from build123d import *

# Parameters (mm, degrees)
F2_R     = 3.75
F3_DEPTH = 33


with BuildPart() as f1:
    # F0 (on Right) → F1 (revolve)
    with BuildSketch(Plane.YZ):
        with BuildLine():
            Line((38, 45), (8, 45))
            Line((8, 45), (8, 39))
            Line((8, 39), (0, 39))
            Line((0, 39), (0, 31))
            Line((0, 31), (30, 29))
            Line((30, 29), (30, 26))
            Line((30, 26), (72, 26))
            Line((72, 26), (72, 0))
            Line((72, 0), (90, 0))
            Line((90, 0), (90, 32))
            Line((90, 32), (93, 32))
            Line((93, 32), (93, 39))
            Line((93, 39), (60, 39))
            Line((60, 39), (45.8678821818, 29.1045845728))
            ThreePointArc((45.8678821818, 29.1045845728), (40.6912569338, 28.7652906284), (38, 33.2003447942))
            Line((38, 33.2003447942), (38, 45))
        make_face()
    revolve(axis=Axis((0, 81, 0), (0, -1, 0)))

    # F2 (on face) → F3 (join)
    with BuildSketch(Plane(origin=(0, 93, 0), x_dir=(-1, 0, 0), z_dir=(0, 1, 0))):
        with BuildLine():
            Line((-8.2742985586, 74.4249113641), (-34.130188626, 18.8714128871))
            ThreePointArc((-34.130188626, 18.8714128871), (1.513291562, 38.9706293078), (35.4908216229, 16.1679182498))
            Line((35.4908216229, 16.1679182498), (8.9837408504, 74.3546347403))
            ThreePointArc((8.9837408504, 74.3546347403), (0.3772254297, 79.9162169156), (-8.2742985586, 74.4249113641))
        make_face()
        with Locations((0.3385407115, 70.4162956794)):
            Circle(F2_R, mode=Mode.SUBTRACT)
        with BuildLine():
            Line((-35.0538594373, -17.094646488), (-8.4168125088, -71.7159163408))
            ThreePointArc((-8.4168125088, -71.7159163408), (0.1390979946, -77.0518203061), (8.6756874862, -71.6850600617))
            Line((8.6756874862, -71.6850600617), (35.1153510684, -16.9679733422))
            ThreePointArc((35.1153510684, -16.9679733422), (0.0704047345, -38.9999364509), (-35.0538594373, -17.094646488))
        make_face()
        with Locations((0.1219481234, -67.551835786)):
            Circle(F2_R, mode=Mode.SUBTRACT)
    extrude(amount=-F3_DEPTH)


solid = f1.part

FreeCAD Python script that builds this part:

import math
import FreeCAD as App
import Part
import Sketcher

V = App.Vector
Q = App.Units.Quantity

doc = App.newDocument("Part")
body = doc.addObject("PartDesign::Body", "Body")

# Sketch on YZ plane
sketch1 = body.newObject("Sketcher::SketchObject", "Sketch")
sketch1.AttachmentSupport = (doc.getObject("YZ_Plane"), [""])
sketch1.MapMode = "FlatFace"
sketch1.addGeometry([
    Part.LineSegment(V(38, 45, 0), V(8, 45, 0)),  # 0
    Part.LineSegment(V(8, 45, 0), V(8, 39, 0)),  # 1
    Part.LineSegment(V(8, 39, 0), V(0, 39, 0)),  # 2
    Part.LineSegment(V(0, 39, 0), V(0, 31, 0)),  # 3
    Part.LineSegment(V(0, 31, 0), V(30, 29, 0)),  # 4
    Part.LineSegment(V(30, 29, 0), V(30, 26, 0)),  # 5
    Part.LineSegment(V(30, 26, 0), V(72, 26, 0)),  # 6
    Part.LineSegment(V(72, 26, 0), V(72, 0, 0)),  # 7
    Part.LineSegment(V(72, 0, 0), V(90, 0, 0)),  # 8
    Part.LineSegment(V(90, 0, 0), V(90, 32, 0)),  # 9
    Part.LineSegment(V(90, 32, 0), V(93, 32, 0)),  # 10
    Part.LineSegment(V(93, 32, 0), V(93, 39, 0)),  # 11
    Part.LineSegment(V(93, 39, 0), V(60, 39, 0)),  # 12
    Part.LineSegment(V(60, 39, 0), V(45.867882, 29.104585, 0)),  # 13
    Part.ArcOfCircle(Part.Circle(V(43, 33.200345, 0), V(0, 0, 1), 5), math.radians(180), math.radians(305)),  # 14
    Part.LineSegment(V(38, 33.200345, 0), V(38, 45, 0)),  # 15
], False)
sketch1.addConstraint([
    Sketcher.Constraint("Coincident", 0, 2, 1, 1),
    Sketcher.Constraint("Coincident", 1, 2, 2, 1),
    Sketcher.Constraint("Coincident", 2, 2, 3, 1),
    Sketcher.Constraint("Coincident", 3, 2, 4, 1),
    Sketcher.Constraint("Coincident", 4, 2, 5, 1),
    Sketcher.Constraint("Coincident", 5, 2, 6, 1),
    Sketcher.Constraint("Coincident", 6, 2, 7, 1),
    Sketcher.Constraint("Coincident", 7, 2, 8, 1),
    Sketcher.Constraint("Coincident", 8, 2, 9, 1),
    Sketcher.Constraint("Coincident", 9, 2, 10, 1),
    Sketcher.Constraint("Coincident", 10, 2, 11, 1),
    Sketcher.Constraint("Coincident", 11, 2, 12, 1),
    Sketcher.Constraint("Coincident", 12, 2, 13, 1),
    Sketcher.Constraint("Tangent", 13, 2, 14, 2),
    Sketcher.Constraint("Tangent", 14, 1, 15, 1),
    Sketcher.Constraint("Coincident", 15, 2, 0, 1),
    Sketcher.Constraint("Horizontal", 0),
    Sketcher.Constraint("Vertical", 1),
    Sketcher.Constraint("Horizontal", 2),
    Sketcher.Constraint("Vertical", 3),
    Sketcher.Constraint("Vertical", 5),
    Sketcher.Constraint("Horizontal", 6),
    Sketcher.Constraint("Vertical", 7),
    Sketcher.Constraint("Horizontal", 8),
    Sketcher.Constraint("Vertical", 9),
    Sketcher.Constraint("Horizontal", 10),
    Sketcher.Constraint("Vertical", 11),
    Sketcher.Constraint("Horizontal", 12),
    Sketcher.Constraint("Vertical", 15),
    Sketcher.Constraint("PointOnObject", 2, 2, -2),
    Sketcher.Constraint("PointOnObject", 7, 2, -1),
    Sketcher.Constraint("Horizontal", 2, 2, 11, 2),
    Sketcher.Constraint("Equal", 2, 3),
    Sketcher.Constraint("Equal", 10, 5),
    Sketcher.Constraint("Radius", 14, Q("5 mm")),
    Sketcher.Constraint("DistanceX", 0, 2, 0, 1, Q("30 mm")),
    Sketcher.Constraint("DistanceX", 2, 2, 2, 1, Q("8 mm")),
    Sketcher.Constraint("DistanceX", 6, 1, 6, 2, Q("42 mm")),
    Sketcher.Constraint("DistanceX", 8, 1, 8, 2, Q("18 mm")),
    Sketcher.Constraint("DistanceX", 10, 1, 10, 2, Q("3 mm")),
    Sketcher.Constraint("DistanceX", 12, 2, 12, 1, Q("33 mm")),
    Sketcher.Constraint("DistanceY", 1, 2, 1, 1, Q("6 mm")),
    Sketcher.Constraint("DistanceY", 7, 2, 7, 1, Q("26 mm")),
    Sketcher.Constraint("DistanceY", 9, 1, 9, 2, Q("32 mm")),
    Sketcher.Constraint("DistanceY", 11, 1, 11, 2, Q("7 mm")),
    Sketcher.Constraint("Angle", 13, Q("-145 deg")),
    Sketcher.Constraint("DistanceX", -1, 1, 4, 2, Q("30 mm")),
])
revolution = body.newObject("PartDesign::Revolution", "Revolution")
revolution.Profile = sketch1
revolution.ReferenceAxis = (sketch1, ["H_Axis"])
revolution.Angle = 360

# Sketch on XZ plane
sketch2 = body.newObject("Sketcher::SketchObject", "Sketch001")
sketch2.AttachmentSupport = (doc.getObject("XZ_Plane"), [""])
sketch2.MapMode = "FlatFace"
sketch2.AttachmentOffset = App.Placement(V(0, 0, -93), App.Rotation())
sketch2.addGeometry([
    Part.LineSegment(V(8.274299, 74.424911, 0), V(34.130189, 18.871413, 0)),  # 0
    Part.ArcOfCircle(Part.Circle(V(0, 0, 0), V(0, 0, 1), 39), math.radians(28.939275), math.radians(155.508263)),  # 1
    Part.LineSegment(V(-35.490822, 16.167918, 0), V(-8.983741, 74.354635, 0)),  # 2
    Part.ArcOfCircle(Part.Circle(V(-0.338541, 70.416296, 0), V(0, 0, 1), 9.5), math.radians(24.958364), math.radians(155.508263)),  # 3
    Part.Circle(V(-0.338541, 70.416296, 0), V(0, 0, 1), 3.75),  # 4
    Part.LineSegment(V(35.053859, -17.094646, 0), V(8.416813, -71.715916, 0)),  # 5
    Part.ArcOfCircle(Part.Circle(V(-0.121948, -67.551836, 0), V(0, 0, 1), 9.5), math.radians(-154.209855), math.radians(-25.997012)),  # 6
    Part.LineSegment(V(-8.675687, -71.68506, 0), V(-35.115351, -16.967973, 0)),  # 7
    Part.ArcOfCircle(Part.Circle(V(0, 0, 0), V(0, 0, 1), 39), math.radians(-154.209855), math.radians(-25.997012)),  # 8
    Part.Circle(V(-0.121948, -67.551836, 0), V(0, 0, 1), 3.75),  # 9
], False)
sketch2.addConstraint([
    Sketcher.Constraint("Coincident", 0, 2, 1, 1),
    Sketcher.Constraint("Tangent", 1, 2, 2, 1),
    Sketcher.Constraint("Tangent", 2, 2, 3, 2),
    Sketcher.Constraint("Tangent", 3, 1, 0, 1),
    Sketcher.Constraint("Tangent", 5, 2, 6, 2),
    Sketcher.Constraint("Tangent", 6, 1, 7, 1),
    Sketcher.Constraint("Tangent", 7, 2, 8, 1),
    Sketcher.Constraint("Tangent", 8, 2, 5, 1),
    Sketcher.Constraint("Coincident", 1, 3, -1, 1),
    Sketcher.Constraint("Coincident", 8, 3, -1, 1),
    Sketcher.Constraint("Coincident", 4, 3, 3, 3),
    Sketcher.Constraint("Coincident", 9, 3, 6, 3),
    Sketcher.Constraint("Equal", 3, 6),
    Sketcher.Constraint("Equal", 1, 8),
    Sketcher.Constraint("Equal", 4, 9),
    Sketcher.Constraint("Radius", 1, Q("39 mm")),
    Sketcher.Constraint("Diameter", 4, Q("7.5 mm")),
    Sketcher.Constraint("Radius", 3, Q("9.5 mm")),
    Sketcher.Constraint("DistanceX", -1, 1, 3, 1, Q("8.274299 mm")),
    Sketcher.Constraint("DistanceX", 2, 2, 3, 3, Q("8.6452 mm")),
    Sketcher.Constraint("DistanceY", 0, 2, 3, 1, Q("55.553498 mm")),
    Sketcher.Constraint("DistanceX", 6, 1, 5, 2, Q("17.0925 mm")),
    Sketcher.Constraint("DistanceX", 6, 3, -1, 1, Q("0.121948 mm")),
])
pad1 = body.newObject("PartDesign::Pad", "Pad")
pad1.Profile = sketch2
pad1.Length = 33

doc.recompute()
